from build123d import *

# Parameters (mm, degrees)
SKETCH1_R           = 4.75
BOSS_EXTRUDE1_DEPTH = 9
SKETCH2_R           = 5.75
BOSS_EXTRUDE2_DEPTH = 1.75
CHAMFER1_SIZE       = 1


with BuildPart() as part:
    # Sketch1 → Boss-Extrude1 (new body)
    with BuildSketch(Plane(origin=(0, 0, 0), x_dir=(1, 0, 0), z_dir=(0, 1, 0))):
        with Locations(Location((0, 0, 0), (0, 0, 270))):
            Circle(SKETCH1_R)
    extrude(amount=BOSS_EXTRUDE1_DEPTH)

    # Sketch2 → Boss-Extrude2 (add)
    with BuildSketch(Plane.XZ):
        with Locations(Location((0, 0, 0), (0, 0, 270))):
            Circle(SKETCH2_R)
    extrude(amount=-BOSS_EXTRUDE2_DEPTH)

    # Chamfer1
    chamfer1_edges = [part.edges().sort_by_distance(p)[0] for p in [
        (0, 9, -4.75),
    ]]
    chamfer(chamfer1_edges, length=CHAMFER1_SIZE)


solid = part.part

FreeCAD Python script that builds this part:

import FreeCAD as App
import Part
import Sketcher
from FreeCAD import Vector


def edges_at(feature, points):
    """Names of the edges that pass closest to the given points."""
    edges = feature.Shape.Edges
    near = lambda p: min(range(len(edges)), key=lambda i: edges[i].distToShape(Part.Vertex(*p))[0])
    return sorted({f"Edge{near(p) + 1}" for p in points})

doc = App.newDocument("Part")
body = doc.addObject("PartDesign::Body", "Body")

sketch1 = doc.addObject("Sketcher::SketchObject", "Sketch")
body.addObject(sketch1)
sketch1.AttachmentSupport = (doc.XZ_Plane, [""])
sketch1.MapMode = "FlatFace"
sketch1.addGeometry(Part.Circle(Vector(0, 0, 0), Vector(0, 0, 1), 4.8), False)
sketch1.addConstraint(Sketcher.Constraint("Coincident", 0, 3, -1, 1))
sketch1.addConstraint(Sketcher.Constraint("Diameter", 0, 9.5))
pad1 = doc.addObject("PartDesign::Pad", "Pad")
body.addObject(pad1)
pad1.Profile = sketch1
pad1.Length = 9
pad1.Reversed = True

sketch2 = doc.addObject("Sketcher::SketchObject", "Sketch001")
body.addObject(sketch2)
sketch2.AttachmentSupport = (doc.XZ_Plane, [""])
sketch2.MapMode = "FlatFace"
sketch2.addGeometry(Part.Circle(Vector(0, 0, 0), Vector(0, 0, 1), 6), False)
sketch2.addConstraint(Sketcher.Constraint("Coincident", 0, 3, -1, 1))
sketch2.addConstraint(Sketcher.Constraint("Diameter", 0, 11.5))
pad2 = doc.addObject("PartDesign::Pad", "Pad001")
body.addObject(pad2)
pad2.Profile = sketch2
pad2.Length = 1.75
pad2.Reversed = True
doc.recompute()

chamfer = doc.addObject("PartDesign::Chamfer", "Chamfer")
body.addObject(chamfer)
chamfer.Base = (pad2, edges_at(pad2, [(0, 9, -4.75)]))
chamfer.Size = 1

doc.recompute()
